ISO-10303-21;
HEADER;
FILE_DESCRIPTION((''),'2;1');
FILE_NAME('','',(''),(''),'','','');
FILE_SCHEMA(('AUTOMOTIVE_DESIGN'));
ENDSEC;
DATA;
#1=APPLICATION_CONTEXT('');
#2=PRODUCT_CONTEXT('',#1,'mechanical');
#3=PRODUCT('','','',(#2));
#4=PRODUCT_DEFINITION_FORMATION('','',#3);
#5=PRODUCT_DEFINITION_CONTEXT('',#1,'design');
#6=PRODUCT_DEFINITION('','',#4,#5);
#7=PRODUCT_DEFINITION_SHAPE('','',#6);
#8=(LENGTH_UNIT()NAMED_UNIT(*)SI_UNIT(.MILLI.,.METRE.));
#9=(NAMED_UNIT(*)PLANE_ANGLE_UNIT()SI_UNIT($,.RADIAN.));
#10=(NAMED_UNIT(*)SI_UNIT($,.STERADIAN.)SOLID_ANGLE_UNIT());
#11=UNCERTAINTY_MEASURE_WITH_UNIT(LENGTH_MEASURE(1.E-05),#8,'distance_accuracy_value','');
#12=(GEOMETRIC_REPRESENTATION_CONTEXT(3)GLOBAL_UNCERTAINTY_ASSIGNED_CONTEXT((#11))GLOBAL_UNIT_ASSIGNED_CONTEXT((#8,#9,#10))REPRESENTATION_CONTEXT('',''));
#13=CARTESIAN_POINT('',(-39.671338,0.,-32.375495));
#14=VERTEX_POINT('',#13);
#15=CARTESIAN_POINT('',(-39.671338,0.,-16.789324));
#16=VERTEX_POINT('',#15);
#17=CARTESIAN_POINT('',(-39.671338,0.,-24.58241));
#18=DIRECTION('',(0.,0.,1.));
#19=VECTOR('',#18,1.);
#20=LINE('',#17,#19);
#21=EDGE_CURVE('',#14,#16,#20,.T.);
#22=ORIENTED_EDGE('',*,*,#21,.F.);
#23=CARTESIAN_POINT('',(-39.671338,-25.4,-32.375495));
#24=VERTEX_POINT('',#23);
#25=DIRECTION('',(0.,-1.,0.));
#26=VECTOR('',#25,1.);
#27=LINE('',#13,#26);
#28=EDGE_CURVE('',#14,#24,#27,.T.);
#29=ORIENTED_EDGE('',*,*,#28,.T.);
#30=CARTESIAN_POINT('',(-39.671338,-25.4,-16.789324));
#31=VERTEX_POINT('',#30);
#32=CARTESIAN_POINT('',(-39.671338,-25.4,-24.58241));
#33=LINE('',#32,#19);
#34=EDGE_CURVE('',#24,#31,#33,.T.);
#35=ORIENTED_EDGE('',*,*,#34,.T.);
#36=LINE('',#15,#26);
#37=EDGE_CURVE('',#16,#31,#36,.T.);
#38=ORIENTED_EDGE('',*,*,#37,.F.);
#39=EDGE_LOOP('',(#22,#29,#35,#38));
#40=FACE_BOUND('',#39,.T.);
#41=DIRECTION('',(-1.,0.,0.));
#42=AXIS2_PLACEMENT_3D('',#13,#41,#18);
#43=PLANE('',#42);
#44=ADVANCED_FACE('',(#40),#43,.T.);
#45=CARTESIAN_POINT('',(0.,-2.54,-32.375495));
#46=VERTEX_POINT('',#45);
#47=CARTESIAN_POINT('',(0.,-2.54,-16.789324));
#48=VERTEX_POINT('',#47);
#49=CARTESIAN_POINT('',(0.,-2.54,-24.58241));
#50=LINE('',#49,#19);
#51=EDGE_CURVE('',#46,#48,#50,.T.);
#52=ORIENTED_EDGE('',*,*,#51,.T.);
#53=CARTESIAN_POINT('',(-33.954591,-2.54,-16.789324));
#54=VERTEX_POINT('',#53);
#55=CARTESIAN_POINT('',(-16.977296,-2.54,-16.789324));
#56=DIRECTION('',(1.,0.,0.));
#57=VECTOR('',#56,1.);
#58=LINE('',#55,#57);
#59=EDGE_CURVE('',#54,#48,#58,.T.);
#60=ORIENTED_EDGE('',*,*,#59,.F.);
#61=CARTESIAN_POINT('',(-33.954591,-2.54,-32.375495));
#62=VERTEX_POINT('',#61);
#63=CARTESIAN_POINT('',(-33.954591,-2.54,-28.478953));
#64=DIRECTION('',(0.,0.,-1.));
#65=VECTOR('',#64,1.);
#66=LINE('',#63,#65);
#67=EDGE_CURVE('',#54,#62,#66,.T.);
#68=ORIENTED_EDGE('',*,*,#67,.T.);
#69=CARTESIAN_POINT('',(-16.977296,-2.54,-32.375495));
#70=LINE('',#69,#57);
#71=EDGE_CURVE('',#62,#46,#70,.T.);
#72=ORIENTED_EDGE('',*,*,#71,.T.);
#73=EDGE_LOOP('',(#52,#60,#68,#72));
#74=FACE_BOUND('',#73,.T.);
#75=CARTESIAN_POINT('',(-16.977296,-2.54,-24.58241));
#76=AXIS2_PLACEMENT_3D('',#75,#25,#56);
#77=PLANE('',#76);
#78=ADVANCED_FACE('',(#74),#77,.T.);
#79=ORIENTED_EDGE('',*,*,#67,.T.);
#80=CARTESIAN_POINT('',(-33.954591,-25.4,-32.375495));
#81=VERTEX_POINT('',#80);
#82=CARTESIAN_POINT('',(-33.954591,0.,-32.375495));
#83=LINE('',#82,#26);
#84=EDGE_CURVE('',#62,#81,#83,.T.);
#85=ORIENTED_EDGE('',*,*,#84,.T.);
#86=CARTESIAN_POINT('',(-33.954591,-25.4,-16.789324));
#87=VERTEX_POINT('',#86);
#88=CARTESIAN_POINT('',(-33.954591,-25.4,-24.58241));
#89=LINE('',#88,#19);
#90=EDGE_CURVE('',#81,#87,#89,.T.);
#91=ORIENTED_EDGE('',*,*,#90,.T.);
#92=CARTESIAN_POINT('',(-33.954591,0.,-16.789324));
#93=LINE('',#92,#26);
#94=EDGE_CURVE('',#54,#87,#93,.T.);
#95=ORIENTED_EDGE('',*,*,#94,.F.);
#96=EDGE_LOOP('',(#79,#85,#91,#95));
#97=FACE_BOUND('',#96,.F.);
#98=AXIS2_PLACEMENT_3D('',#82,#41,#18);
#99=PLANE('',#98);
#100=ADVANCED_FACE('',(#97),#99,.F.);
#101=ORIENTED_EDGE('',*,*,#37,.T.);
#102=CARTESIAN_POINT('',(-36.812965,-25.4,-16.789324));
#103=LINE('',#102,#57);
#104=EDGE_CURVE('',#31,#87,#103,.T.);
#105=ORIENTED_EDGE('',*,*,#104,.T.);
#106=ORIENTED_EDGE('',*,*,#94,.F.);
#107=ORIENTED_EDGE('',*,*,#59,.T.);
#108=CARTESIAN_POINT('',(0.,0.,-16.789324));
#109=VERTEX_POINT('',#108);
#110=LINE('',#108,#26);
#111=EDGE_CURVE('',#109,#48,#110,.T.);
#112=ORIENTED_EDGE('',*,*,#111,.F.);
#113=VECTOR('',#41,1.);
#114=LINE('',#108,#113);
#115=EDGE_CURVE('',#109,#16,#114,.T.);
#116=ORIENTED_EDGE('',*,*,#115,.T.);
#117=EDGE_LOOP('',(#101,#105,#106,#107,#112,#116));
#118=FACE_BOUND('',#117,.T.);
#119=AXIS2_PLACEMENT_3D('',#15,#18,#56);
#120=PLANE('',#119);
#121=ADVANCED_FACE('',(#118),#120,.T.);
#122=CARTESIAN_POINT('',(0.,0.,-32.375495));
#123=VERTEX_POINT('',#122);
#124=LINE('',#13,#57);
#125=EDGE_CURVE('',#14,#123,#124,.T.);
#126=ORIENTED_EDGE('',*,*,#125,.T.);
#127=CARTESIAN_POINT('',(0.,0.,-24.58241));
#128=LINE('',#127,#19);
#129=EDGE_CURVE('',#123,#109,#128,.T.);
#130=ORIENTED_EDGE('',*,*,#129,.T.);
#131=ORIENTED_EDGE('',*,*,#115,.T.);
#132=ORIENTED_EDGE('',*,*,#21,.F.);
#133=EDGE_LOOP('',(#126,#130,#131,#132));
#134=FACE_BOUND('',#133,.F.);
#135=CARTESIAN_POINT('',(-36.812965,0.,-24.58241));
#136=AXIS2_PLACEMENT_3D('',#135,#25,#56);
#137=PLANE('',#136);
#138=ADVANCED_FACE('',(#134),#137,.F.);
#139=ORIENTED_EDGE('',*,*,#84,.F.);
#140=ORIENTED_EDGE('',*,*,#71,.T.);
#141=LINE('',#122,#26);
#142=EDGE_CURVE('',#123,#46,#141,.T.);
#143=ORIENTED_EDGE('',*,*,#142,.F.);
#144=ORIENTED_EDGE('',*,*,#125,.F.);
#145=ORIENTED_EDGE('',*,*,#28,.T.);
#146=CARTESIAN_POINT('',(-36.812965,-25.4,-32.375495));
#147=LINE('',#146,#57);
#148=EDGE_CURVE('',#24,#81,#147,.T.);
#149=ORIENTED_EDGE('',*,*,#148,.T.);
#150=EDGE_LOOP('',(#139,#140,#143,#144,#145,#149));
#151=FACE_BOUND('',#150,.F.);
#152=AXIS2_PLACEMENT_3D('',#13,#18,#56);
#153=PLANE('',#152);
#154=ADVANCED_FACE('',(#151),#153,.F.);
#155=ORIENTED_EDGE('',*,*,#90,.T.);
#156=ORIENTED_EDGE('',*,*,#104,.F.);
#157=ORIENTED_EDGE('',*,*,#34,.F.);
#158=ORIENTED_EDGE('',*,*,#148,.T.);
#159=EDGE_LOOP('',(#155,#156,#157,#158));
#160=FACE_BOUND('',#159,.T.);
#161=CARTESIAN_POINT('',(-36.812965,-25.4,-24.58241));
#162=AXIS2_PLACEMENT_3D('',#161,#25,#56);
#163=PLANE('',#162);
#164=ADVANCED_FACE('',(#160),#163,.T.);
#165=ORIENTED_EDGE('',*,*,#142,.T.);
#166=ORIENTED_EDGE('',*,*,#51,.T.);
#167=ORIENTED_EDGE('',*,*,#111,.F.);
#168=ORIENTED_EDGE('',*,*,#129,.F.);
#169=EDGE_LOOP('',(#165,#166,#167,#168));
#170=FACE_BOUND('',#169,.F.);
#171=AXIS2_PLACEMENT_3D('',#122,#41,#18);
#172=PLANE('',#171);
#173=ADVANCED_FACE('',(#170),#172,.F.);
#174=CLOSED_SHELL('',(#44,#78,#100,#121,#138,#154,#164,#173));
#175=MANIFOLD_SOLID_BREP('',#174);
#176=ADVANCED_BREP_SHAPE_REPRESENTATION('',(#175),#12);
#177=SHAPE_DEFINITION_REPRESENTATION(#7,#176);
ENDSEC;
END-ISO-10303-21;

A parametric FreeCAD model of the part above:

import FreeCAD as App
import Part
import Sketcher


def add_polygon(sketch, points):
    """Adds a closed chain of lines whose ends are joined by coincident constraints."""
    first, n = sketch.GeometryCount, len(points)
    for a, b in zip(points, points[1:] + points[:1]):
        sketch.addGeometry(Part.LineSegment(App.Vector(*a, 0), App.Vector(*b, 0)), False)
    for i in range(n):
        sketch.addConstraint(Sketcher.Constraint("Coincident", first + i, 2, first + (i + 1) % n, 1))

doc = App.newDocument("Part")
params = doc.addObject("Spreadsheet::Sheet", "Params")
for row, (alias, value) in enumerate([
    ("pad1_length", "0.1 in"),
    ("pad2_length", "1 in"),
], start=1):
    params.set(f"A{row}", alias)
    params.set(f"B{row}", "=" + value)
    params.setAlias(f"B{row}", alias)

body = doc.addObject("PartDesign::Body", "Body")

sketch1 = doc.addObject("Sketcher::SketchObject", "Sketch")
body.addObject(sketch1)
sketch1.AttachmentSupport = (doc.XZ_Plane, [""])
sketch1.MapMode = "FlatFace"
add_polygon(sketch1, [(-34, -17), (-34, -32), (0, -32), (0, -17)])
sketch1.addConstraint([
    Sketcher.Constraint("Vertical", 0),
    Sketcher.Constraint("Horizontal", 1),
    Sketcher.Constraint("Vertical", 2),
    Sketcher.Constraint("Horizontal", 3),
    Sketcher.Constraint("PointOnObject", 1, 2, -2),
    Sketcher.Constraint("DistanceX", 1, 1, 1, 2, 33.954592),
    Sketcher.Constraint("DistanceY", 0, 2, 0, 1, 15.586171),
    Sketcher.Constraint("DistanceY", 0, 2, -1, 1, 32.375495),
])
pad1 = doc.addObject("PartDesign::Pad", "Pad")
body.addObject(pad1)
pad1.Profile = sketch1
pad1.setExpression("Length", "Params.pad1_length")

sketch2 = doc.addObject("Sketcher::SketchObject", "Sketch001")
body.addObject(sketch2)
sketch2.AttachmentSupport = (doc.XZ_Plane, [""])
sketch2.MapMode = "FlatFace"
add_polygon(sketch2, [(-40, -17), (-40, -32), (-34, -32), (-34, -17)])
sketch2.addConstraint([
    Sketcher.Constraint("Vertical", 0),
    Sketcher.Constraint("Horizontal", 1),
    Sketcher.Constraint("Vertical", 2),
    Sketcher.Constraint("Horizontal", 3),
    Sketcher.Constraint("DistanceY", 0, 2, 0, 1, 15.586171),
    Sketcher.Constraint("DistanceX", 1, 1, 1, 2, 5.716747),
    Sketcher.Constraint("DistanceX", 0, 2, -1, 1, 39.671338),
    Sketcher.Constraint("DistanceY", 0, 2, -1, 1, 32.375495),
])
pad2 = doc.addObject("PartDesign::Pad", "Pad001")
body.addObject(pad2)
pad2.Profile = sketch2
pad2.setExpression("Length", "Params.pad2_length")

doc.recompute()
